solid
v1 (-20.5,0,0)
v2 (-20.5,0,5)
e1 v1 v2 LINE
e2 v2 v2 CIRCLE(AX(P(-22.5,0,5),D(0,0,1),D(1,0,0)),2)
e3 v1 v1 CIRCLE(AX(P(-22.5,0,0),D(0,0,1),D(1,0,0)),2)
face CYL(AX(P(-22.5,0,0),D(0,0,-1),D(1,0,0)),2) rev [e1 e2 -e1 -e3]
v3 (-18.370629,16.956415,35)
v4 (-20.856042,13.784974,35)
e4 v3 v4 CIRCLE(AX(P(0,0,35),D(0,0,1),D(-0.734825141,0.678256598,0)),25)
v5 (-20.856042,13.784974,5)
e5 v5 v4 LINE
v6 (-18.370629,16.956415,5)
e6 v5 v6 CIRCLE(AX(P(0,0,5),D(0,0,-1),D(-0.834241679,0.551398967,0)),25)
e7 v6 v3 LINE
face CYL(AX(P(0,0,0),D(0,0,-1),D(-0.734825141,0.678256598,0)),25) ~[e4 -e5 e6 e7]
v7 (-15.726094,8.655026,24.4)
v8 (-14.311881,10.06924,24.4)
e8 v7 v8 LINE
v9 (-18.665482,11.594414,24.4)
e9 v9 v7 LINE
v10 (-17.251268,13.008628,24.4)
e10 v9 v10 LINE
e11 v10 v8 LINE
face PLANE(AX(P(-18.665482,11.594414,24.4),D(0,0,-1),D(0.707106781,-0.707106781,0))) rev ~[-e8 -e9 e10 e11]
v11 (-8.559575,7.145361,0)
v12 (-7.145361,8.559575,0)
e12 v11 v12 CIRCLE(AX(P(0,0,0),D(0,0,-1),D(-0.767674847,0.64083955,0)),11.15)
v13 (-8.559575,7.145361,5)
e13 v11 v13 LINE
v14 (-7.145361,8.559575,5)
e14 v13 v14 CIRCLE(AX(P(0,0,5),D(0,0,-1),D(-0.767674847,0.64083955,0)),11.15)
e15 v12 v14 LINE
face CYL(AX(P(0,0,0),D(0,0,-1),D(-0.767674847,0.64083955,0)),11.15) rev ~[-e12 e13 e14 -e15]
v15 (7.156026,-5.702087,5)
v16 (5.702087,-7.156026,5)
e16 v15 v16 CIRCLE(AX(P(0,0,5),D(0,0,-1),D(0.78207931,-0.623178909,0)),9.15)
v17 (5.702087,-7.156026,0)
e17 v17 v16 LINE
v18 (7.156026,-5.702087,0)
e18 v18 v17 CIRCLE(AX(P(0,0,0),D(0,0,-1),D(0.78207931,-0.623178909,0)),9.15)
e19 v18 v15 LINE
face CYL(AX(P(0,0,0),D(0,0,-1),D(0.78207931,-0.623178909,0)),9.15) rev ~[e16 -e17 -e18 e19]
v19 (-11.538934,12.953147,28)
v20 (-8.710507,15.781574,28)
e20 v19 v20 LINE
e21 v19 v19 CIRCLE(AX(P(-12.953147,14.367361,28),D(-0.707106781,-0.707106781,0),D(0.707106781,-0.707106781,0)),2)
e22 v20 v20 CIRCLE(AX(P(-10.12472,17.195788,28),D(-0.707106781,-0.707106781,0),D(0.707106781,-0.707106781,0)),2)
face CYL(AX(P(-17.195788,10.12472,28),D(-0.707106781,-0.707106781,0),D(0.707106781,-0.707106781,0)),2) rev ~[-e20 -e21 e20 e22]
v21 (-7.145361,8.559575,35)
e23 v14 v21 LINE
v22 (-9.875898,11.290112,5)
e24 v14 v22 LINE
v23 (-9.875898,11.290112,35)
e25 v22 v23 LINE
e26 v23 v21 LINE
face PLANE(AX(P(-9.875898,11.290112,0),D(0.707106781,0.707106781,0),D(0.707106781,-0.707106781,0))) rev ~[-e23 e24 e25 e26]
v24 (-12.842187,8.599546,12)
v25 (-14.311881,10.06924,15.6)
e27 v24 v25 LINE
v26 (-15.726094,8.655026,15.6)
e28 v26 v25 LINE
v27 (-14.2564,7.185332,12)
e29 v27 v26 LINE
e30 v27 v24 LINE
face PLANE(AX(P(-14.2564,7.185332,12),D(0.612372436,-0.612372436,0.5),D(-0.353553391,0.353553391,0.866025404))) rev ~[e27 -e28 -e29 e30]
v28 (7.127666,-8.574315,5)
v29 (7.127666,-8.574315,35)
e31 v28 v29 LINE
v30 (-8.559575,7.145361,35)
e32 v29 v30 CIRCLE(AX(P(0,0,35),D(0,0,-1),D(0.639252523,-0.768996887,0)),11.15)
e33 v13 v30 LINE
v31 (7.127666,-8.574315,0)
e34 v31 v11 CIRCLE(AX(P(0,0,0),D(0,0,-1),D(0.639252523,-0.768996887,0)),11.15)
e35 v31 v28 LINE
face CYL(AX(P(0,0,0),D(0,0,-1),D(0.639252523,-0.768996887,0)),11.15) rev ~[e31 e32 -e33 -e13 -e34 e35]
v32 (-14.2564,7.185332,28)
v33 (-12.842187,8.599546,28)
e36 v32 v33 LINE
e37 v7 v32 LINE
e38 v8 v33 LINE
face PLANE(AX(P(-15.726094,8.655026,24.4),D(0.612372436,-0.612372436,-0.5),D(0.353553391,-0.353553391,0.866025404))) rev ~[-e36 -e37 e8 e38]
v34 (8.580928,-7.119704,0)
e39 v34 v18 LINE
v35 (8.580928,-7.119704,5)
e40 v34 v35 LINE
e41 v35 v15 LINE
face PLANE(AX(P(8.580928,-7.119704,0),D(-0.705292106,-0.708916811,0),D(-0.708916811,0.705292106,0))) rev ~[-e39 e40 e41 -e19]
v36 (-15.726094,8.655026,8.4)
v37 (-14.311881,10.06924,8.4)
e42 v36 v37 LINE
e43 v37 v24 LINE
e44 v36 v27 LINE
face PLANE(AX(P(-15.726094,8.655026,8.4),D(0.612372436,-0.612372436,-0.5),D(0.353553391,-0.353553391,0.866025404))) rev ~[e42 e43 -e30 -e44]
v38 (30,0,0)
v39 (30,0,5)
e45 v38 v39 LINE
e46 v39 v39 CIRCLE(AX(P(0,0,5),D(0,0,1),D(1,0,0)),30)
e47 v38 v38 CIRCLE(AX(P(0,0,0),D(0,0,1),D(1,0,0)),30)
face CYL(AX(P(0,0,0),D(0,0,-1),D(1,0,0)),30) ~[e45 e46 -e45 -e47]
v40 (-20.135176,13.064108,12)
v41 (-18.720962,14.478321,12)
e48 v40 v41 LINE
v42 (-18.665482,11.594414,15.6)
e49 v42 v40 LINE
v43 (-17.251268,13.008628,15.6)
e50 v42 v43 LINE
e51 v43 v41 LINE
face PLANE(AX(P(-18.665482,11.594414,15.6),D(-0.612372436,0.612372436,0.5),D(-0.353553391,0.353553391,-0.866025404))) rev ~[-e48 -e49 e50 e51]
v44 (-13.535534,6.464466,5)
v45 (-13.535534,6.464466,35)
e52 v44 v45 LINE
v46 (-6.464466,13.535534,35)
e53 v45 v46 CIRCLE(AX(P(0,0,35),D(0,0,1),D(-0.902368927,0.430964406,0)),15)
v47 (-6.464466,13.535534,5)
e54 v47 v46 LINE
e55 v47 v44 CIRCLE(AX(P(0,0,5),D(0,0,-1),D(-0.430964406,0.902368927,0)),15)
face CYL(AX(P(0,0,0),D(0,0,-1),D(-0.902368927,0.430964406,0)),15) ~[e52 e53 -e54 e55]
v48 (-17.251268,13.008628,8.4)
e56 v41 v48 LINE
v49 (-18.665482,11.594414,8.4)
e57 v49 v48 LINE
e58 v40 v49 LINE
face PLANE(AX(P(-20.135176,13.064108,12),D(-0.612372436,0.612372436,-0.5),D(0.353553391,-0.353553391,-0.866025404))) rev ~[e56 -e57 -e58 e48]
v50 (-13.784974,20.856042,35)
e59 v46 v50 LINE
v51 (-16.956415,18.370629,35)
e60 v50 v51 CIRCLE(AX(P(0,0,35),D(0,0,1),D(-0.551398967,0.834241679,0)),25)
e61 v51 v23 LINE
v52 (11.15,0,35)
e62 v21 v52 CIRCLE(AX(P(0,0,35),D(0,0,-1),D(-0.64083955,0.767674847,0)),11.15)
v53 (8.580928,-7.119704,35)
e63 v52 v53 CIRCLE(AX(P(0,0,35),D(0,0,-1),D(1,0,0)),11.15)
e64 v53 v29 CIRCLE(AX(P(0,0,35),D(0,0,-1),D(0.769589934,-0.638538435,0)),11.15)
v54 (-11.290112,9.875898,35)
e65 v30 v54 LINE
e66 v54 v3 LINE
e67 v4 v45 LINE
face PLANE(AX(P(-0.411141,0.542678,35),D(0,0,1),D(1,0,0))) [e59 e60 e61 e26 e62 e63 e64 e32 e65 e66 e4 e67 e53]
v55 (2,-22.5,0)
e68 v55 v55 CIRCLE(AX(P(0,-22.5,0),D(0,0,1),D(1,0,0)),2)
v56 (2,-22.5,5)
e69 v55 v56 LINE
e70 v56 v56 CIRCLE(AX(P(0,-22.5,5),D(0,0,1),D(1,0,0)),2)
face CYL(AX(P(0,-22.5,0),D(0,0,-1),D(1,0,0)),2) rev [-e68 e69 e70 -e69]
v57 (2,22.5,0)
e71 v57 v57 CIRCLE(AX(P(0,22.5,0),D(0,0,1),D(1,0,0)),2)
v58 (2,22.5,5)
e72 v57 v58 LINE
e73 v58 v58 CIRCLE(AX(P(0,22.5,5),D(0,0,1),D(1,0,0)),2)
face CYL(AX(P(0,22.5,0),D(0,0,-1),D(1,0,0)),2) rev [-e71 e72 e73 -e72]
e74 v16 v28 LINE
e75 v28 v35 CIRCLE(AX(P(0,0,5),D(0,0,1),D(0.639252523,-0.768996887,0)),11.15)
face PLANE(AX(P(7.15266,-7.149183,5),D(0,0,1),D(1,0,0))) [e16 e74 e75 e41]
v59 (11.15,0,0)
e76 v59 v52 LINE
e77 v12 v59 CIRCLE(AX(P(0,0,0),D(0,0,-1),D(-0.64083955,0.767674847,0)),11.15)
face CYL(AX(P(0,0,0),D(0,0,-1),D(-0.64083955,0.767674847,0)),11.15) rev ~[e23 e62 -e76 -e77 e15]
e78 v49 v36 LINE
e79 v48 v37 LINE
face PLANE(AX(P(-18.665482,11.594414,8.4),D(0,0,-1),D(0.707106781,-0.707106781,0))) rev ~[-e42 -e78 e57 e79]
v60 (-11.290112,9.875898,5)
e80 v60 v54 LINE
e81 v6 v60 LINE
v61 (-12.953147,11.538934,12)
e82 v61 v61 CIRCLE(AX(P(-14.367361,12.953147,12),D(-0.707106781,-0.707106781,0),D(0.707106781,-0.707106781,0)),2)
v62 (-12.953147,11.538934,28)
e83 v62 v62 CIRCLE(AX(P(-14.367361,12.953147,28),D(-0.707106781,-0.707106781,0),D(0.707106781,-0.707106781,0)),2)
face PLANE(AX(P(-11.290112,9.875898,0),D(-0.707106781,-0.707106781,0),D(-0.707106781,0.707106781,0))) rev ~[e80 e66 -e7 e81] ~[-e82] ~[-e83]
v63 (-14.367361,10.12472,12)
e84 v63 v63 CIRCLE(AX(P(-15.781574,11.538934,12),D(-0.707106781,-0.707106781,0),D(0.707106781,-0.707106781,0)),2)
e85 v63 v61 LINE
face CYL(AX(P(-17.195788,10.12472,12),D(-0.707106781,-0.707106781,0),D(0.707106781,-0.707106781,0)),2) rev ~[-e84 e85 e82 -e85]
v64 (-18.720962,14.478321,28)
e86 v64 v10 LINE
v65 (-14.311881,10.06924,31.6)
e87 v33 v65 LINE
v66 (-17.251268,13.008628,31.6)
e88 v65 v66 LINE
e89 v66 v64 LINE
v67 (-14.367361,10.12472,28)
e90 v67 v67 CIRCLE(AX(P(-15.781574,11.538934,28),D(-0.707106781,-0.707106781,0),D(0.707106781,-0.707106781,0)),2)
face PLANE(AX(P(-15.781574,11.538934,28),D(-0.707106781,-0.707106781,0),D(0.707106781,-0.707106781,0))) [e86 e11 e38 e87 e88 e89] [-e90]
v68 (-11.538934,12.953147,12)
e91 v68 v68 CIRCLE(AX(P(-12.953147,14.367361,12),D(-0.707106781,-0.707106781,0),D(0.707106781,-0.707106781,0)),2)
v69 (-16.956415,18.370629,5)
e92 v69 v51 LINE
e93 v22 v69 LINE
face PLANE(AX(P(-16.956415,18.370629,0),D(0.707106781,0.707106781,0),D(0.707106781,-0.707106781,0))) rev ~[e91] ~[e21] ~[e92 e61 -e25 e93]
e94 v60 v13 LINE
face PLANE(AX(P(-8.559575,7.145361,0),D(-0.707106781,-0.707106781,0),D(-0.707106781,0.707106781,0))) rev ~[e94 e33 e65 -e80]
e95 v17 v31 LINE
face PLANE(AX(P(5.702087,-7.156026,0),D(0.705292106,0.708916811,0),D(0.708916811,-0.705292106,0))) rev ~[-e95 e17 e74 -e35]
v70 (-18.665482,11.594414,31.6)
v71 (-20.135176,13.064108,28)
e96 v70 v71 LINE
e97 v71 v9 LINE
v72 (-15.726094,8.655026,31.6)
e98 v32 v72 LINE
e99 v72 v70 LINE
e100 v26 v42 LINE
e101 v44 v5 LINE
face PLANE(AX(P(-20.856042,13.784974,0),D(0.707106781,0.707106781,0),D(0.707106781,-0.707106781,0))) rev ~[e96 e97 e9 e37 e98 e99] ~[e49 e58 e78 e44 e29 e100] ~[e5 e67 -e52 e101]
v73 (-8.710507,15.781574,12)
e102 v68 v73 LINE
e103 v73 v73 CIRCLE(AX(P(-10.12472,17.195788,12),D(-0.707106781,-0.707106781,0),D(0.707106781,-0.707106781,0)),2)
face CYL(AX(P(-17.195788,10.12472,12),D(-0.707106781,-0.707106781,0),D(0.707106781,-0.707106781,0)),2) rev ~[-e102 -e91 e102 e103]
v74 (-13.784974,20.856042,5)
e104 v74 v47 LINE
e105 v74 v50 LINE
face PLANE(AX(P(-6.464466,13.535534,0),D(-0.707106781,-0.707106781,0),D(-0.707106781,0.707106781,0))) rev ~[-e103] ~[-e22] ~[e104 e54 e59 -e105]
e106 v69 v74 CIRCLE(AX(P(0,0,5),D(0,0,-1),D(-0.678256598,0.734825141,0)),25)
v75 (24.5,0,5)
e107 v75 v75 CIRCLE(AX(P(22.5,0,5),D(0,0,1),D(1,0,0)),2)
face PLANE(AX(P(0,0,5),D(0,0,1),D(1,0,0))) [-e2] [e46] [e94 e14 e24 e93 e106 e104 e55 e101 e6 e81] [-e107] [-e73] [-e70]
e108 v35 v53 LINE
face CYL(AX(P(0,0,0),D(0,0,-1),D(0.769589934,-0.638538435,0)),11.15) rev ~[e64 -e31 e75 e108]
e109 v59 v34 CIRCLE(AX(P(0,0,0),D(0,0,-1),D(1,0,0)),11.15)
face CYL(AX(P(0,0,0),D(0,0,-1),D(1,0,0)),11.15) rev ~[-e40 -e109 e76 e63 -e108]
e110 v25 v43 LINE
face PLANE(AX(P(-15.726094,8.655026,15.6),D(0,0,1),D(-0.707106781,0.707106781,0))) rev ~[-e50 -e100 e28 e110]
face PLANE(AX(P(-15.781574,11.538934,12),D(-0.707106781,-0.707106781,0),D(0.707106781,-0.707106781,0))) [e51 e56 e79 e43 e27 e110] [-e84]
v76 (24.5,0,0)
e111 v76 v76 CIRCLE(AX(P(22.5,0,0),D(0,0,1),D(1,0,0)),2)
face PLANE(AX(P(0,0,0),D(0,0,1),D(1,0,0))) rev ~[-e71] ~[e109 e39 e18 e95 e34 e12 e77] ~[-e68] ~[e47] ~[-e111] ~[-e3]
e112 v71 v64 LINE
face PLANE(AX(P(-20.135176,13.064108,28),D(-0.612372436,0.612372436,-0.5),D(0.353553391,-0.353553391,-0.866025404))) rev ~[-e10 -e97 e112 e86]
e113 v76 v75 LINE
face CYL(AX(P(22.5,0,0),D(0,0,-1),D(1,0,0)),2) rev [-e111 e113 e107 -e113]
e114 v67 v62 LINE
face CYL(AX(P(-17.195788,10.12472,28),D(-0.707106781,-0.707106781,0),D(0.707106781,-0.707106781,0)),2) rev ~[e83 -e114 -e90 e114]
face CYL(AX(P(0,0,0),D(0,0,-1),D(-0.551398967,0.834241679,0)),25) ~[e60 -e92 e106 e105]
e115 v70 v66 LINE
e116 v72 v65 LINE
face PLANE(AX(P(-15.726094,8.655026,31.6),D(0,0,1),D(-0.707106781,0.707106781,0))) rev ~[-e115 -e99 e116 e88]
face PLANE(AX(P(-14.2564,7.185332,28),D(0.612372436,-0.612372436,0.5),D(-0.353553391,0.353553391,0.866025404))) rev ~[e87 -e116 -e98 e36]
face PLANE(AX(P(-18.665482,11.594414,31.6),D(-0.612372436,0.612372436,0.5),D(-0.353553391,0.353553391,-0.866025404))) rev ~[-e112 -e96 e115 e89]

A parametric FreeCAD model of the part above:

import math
import FreeCAD as App
import Part
import Sketcher
Q = App.Units.Quantity


def add_polygon(sketch, points):
    """Adds a closed chain of lines whose ends are joined by coincident constraints."""
    first, n = sketch.GeometryCount, len(points)
    for a, b in zip(points, points[1:] + points[:1]):
        sketch.addGeometry(Part.LineSegment(App.Vector(*a, 0), App.Vector(*b, 0)), False)
    for i in range(n):
        sketch.addConstraint(Sketcher.Constraint("Coincident", first + i, 2, first + (i + 1) % n, 1))

doc = App.newDocument("Part")
body = doc.addObject("PartDesign::Body", "Body")

# Sketch on XY plane
sketch1 = body.newObject("Sketcher::SketchObject", "Sketch")
sketch1.AttachmentSupport = (doc.getObject("XY_Plane"), [""])
sketch1.MapMode = "FlatFace"
sketch1.addGeometry([
    Part.ArcOfCircle(Part.Circle(App.Vector(0, 0, 0), App.Vector(0, 0, 1), 11.2), math.radians(0), math.radians(130)),  # 0
    Part.ArcOfCircle(Part.Circle(App.Vector(0, 0, 0), App.Vector(0, 0, 1), 11.1), math.radians(-40), math.radians(0)),  # 1
    Part.ArcOfCircle(Part.Circle(App.Vector(0, 0, 0), App.Vector(0, 0, 1), 11.2), math.radians(-50.26), math.radians(-39.68)),  # 2
    Part.ArcOfCircle(Part.Circle(App.Vector(0, 0, 0), App.Vector(0, 0, 1), 11.2), math.radians(140), math.radians(310)),  # 3
    Part.LineSegment(App.Vector(-8.6, 7.1, 0), App.Vector(-11.3, 9.9, 0)),  # 4
    Part.LineSegment(App.Vector(-11.3, 9.9, 0), App.Vector(-18.4, 17, 0)),  # 5
    Part.ArcOfCircle(Part.Circle(App.Vector(0, 0, 0), App.Vector(0, 0, 1), 25), math.radians(137.29), math.radians(146.54)),  # 6
    Part.LineSegment(App.Vector(-20.9, 13.8, 0), App.Vector(-13.5, 6.5, 0)),  # 7
    Part.ArcOfCircle(Part.Circle(App.Vector(0, 0, 0), App.Vector(0, 0, 1), 15), math.radians(154), math.radians(476)),  # 8
    Part.LineSegment(App.Vector(-6.5, 13.5, 0), App.Vector(-13.8, 20.9, 0)),  # 9
    Part.ArcOfCircle(Part.Circle(App.Vector(0, 0, 0), App.Vector(0, 0, 1), 25), math.radians(123.46), math.radians(132.71)),  # 10
    Part.LineSegment(App.Vector(-17, 18.4, 0), App.Vector(-9.9, 11.3, 0)),  # 11
    Part.LineSegment(App.Vector(-9.9, 11.3, 0), App.Vector(-7.1, 8.6, 0)),  # 12
], False)
sketch1.addConstraint([
    Sketcher.Constraint("Tangent", 0, 1, 1, 2),
    Sketcher.Constraint("Tangent", 1, 1, 2, 2),
    Sketcher.Constraint("Tangent", 2, 1, 3, 2),
    Sketcher.Constraint("Coincident", 3, 1, 4, 1),
    Sketcher.Constraint("Coincident", 4, 2, 5, 1),
    Sketcher.Constraint("Coincident", 5, 2, 6, 1),
    Sketcher.Constraint("Coincident", 6, 2, 7, 1),
    Sketcher.Constraint("Coincident", 7, 2, 8, 1),
    Sketcher.Constraint("Coincident", 8, 2, 9, 1),
    Sketcher.Constraint("Coincident", 9, 2, 10, 1),
    Sketcher.Constraint("Coincident", 10, 2, 11, 1),
    Sketcher.Constraint("Coincident", 11, 2, 12, 1),
    Sketcher.Constraint("Coincident", 12, 2, 0, 2),
    Sketcher.Constraint("Coincident", 0, 3, -1, 1),
    Sketcher.Constraint("Coincident", 2, 3, -1, 1),
    Sketcher.Constraint("Coincident", 6, 3, -1, 1),
    Sketcher.Constraint("Coincident", 8, 3, -1, 1),
    Sketcher.Constraint("Coincident", 10, 3, -1, 1),
    Sketcher.Constraint("Equal", 2, 3),
    Sketcher.Constraint("Equal", 6, 10),
    Sketcher.Constraint("PointOnObject", 0, 1, -1),
    Sketcher.Constraint("Parallel", 4, 5),
    Sketcher.Constraint("Parallel", 5, 7),
    Sketcher.Constraint("Parallel", 7, 9),
    Sketcher.Constraint("Parallel", 9, 11),
    Sketcher.Constraint("Parallel", 11, 12),
    Sketcher.Constraint("Equal", 7, 9),
    Sketcher.Constraint("Equal", 5, 11),
    Sketcher.Constraint("Equal", 4, 12),
    Sketcher.Constraint("Radius", 6, Q("25 mm")),
    Sketcher.Constraint("Radius", 8, Q("15 mm")),
    Sketcher.Constraint("Angle", 4, Q("135 deg")),
    Sketcher.Constraint("Radius", 0, Q("11.15 mm")),
    Sketcher.Constraint("DistanceY", -1, 1, 4, 2, Q("9.875898 mm")),
    Sketcher.Constraint("Distance", 7, Q("10.352762 mm")),
    Sketcher.Constraint("DistanceY", -1, 1, 3, 1, Q("7.145361 mm")),
    Sketcher.Constraint("DistanceY", 2, 1, 1, 1, Q("1.454612 mm")),
    Sketcher.Constraint("DistanceX", -1, 1, 1, 1, Q("8.580928 mm")),
])
pad1 = body.newObject("PartDesign::Pad", "Pad")
pad1.Profile = sketch1
pad1.Length = 35

# Sketch on XY plane
sketch2 = body.newObject("Sketcher::SketchObject", "Sketch001")
sketch2.AttachmentSupport = (doc.getObject("XY_Plane"), [""])
sketch2.MapMode = "FlatFace"
sketch2.addGeometry([
    Part.Circle(App.Vector(0, 0, 0), App.Vector(0, 0, 1), 30),  # 0
    Part.Circle(App.Vector(0, -22.5, 0), App.Vector(0, 0, 1), 2),  # 1
    Part.Circle(App.Vector(-22.5, 0, 0), App.Vector(0, 0, 1), 2),  # 2
    Part.Circle(App.Vector(22.5, 0, 0), App.Vector(0, 0, 1), 2),  # 3
    Part.ArcOfCircle(Part.Circle(App.Vector(0, 0, 0), App.Vector(0, 0, 1), 25), math.radians(123.46), math.radians(132.71)),  # 4
    Part.LineSegment(App.Vector(-13.8, 20.9, 0), App.Vector(-6.5, 13.5, 0)),  # 5
    Part.ArcOfCircle(Part.Circle(App.Vector(0, 0, 0), App.Vector(0, 0, 1), 15), math.radians(154), math.radians(476)),  # 6
    Part.LineSegment(App.Vector(-13.5, 6.5, 0), App.Vector(-20.9, 13.8, 0)),  # 7
    Part.ArcOfCircle(Part.Circle(App.Vector(0, 0, 0), App.Vector(0, 0, 1), 25), math.radians(137.29), math.radians(146.54)),  # 8
    Part.LineSegment(App.Vector(-18.4, 17, 0), App.Vector(-11.3, 9.9, 0)),  # 9
    Part.LineSegment(App.Vector(-11.3, 9.9, 0), App.Vector(-8.6, 7.1, 0)),  # 10
    Part.ArcOfCircle(Part.Circle(App.Vector(0, 0, 0), App.Vector(0, 0, 1), 11.2), math.radians(129.85), math.radians(140.15)),  # 11
    Part.LineSegment(App.Vector(-7.1, 8.6, 0), App.Vector(-9.9, 11.3, 0)),  # 12
    Part.LineSegment(App.Vector(-9.9, 11.3, 0), App.Vector(-17, 18.4, 0)),  # 13
    Part.Circle(App.Vector(0, 22.5, 0), App.Vector(0, 0, 1), 2),  # 14
    Part.ArcOfCircle(Part.Circle(App.Vector(0, 0, 0), App.Vector(0, 0, 1), 11.2), math.radians(-50.26), math.radians(-39.68)),  # 15
    Part.LineSegment(App.Vector(8.6, -7.1, 0), App.Vector(7.2, -5.7, 0)),  # 16
    Part.ArcOfCircle(Part.Circle(App.Vector(0, 0, 0), App.Vector(0, 0, 1), 9.1), math.radians(-51.45), math.radians(-38.55)),  # 17
    Part.LineSegment(App.Vector(5.7, -7.2, 0), App.Vector(7.1, -8.6, 0)),  # 18
], False)
sketch2.addConstraint([
    Sketcher.Constraint("Coincident", 4, 1, 5, 1),
    Sketcher.Constraint("Coincident", 5, 2, 6, 2),
    Sketcher.Constraint("Coincident", 6, 1, 7, 1),
    Sketcher.Constraint("Coincident", 7, 2, 8, 2),
    Sketcher.Constraint("Coincident", 8, 1, 9, 1),
    Sketcher.Constraint("Coincident", 9, 2, 10, 1),
    Sketcher.Constraint("Coincident", 10, 2, 11, 2),
    Sketcher.Constraint("Coincident", 11, 1, 12, 1),
    Sketcher.Constraint("Coincident", 12, 2, 13, 1),
    Sketcher.Constraint("Coincident", 13, 2, 4, 2),
    Sketcher.Constraint("Coincident", 15, 2, 16, 1),
    Sketcher.Constraint("Coincident", 16, 2, 17, 2),
    Sketcher.Constraint("Coincident", 17, 1, 18, 1),
    Sketcher.Constraint("Coincident", 18, 2, 15, 1),
    Sketcher.Constraint("Coincident", 0, 3, -1, 1),
    Sketcher.Constraint("Coincident", 4, 3, -1, 1),
    Sketcher.Constraint("Coincident", 6, 3, -1, 1),
    Sketcher.Constraint("Coincident", 8, 3, -1, 1),
    Sketcher.Constraint("Coincident", 11, 3, -1, 1),
    Sketcher.Constraint("Coincident", 15, 3, -1, 1),
    Sketcher.Constraint("Coincident", 17, 3, -1, 1),
    Sketcher.Constraint("Equal", 1, 2),
    Sketcher.Constraint("Equal", 2, 3),
    Sketcher.Constraint("Equal", 4, 8),
    Sketcher.Constraint("Equal", 3, 14),
    Sketcher.Constraint("Equal", 11, 15),
    Sketcher.Constraint("Symmetric", 2, 3, 3, 3, -1, 1),
    Sketcher.Constraint("Symmetric", 1, 3, 14, 3, -1, 1),
    Sketcher.Constraint("PointOnObject", 1, 3, -2),
    Sketcher.Constraint("PointOnObject", 2, 3, -1),
    Sketcher.Constraint("Parallel", 5, 7),
    Sketcher.Constraint("Parallel", 7, 9),
    Sketcher.Constraint("Parallel", 9, 10),
    Sketcher.Constraint("Parallel", 10, 12),
    Sketcher.Constraint("Parallel", 12, 13),
    Sketcher.Constraint("Parallel", 16, 18),
    Sketcher.Constraint("Equal", 5, 7),
    Sketcher.Constraint("Equal", 10, 12),
    Sketcher.Constraint("Equal", 9, 13),
    Sketcher.Constraint("Diameter", 0, Q("60 mm")),
    Sketcher.Constraint("Diameter", 1, Q("4 mm")),
    Sketcher.Constraint("Radius", 4, Q("25 mm")),
    Sketcher.Constraint("Radius", 6, Q("15 mm")),
    Sketcher.Constraint("Angle", 5, Q("-45 deg")),
    Sketcher.Constraint("Radius", 11, Q("11.15 mm")),
    Sketcher.Constraint("Radius", 17, Q("9.15 mm")),
    Sketcher.Constraint("DistanceX", 2, 3, 3, 3, Q("45 mm")),
    Sketcher.Constraint("DistanceY", 1, 3, -1, 1, Q("22.5 mm")),
    Sketcher.Constraint("DistanceY", -1, 1, 9, 2, Q("9.875898 mm")),
    Sketcher.Constraint("Distance", 5, Q("10.352762 mm")),
    Sketcher.Constraint("Distance", 16, Q("2.009971 mm")),
    Sketcher.Constraint("DistanceX", 8, 1, -1, 1, Q("18.370629 mm")),
    Sketcher.Constraint("DistanceX", 17, 1, 16, 2, Q("1.453939 mm")),
    Sketcher.Constraint("DistanceY", 17, 1, 16, 2, Q("1.453939 mm")),
])
pad2 = body.newObject("PartDesign::Pad", "Pad001")
pad2.Profile = sketch2
pad2.Length = 5

# Sketch on an angled plane
sketch3 = body.newObject("Sketcher::SketchObject", "Sketch002")
sketch3.Placement = App.Placement(App.Vector(-3.535534, -3.535534, 0), App.Rotation(App.Vector(0.707106781, -0.707106781, 0), App.Vector(0, 0, 0.999999999), App.Vector(-0.707106781, -0.707106781, 0), "ZXY"))
sketch3.addGeometry([
    Part.Circle(App.Vector(-19.3, 28, 0), App.Vector(0, 0, 1), 2),
    Part.Circle(App.Vector(-19.3, 12, 0), App.Vector(0, 0, 1), 2),
], False)
sketch3.addConstraint([
    Sketcher.Constraint("Equal", 0, 1),
    Sketcher.Constraint("Vertical", 0, 3, 1, 3),
    Sketcher.Constraint("Diameter", 0, Q("4 mm")),
    Sketcher.Constraint("DistanceY", -1, 1, 0, 3, Q("28 mm")),
    Sketcher.Constraint("DistanceY", -1, 1, 1, 3, Q("12 mm")),
    Sketcher.Constraint("DistanceX", 0, 3, -1, 1, Q("19.318517 mm")),
])
pocket1 = body.newObject("PartDesign::Pocket", "Pocket")
pocket1.Profile = sketch3
pocket1.Length = 11

# Sketch on an angled plane
sketch4 = body.newObject("Sketcher::SketchObject", "Sketch003")
sketch4.Placement = App.Placement(App.Vector(-3.535534, -3.535534, 0), App.Rotation(App.Vector(0.707106781, -0.707106781, 0), App.Vector(0, 0, 0.999999999), App.Vector(-0.707106781, -0.707106781, 0), "ZXY"))
add_polygon(sketch4, [(-17.2, 31.6), (-21.4, 31.6), (-23.5, 28), (-21.4, 24.4), (-17.2, 24.4), (-15.2, 28)])  # lines 0-5
sketch4.addGeometry(Part.Circle(App.Vector(-19.3, 28, 0), App.Vector(0, 0, 1), 2), False)  # 6
add_polygon(sketch4, [(-17.2, 15.6), (-21.4, 15.6), (-23.5, 12), (-21.4, 8.4), (-17.2, 8.4), (-15.2, 12)])  # lines 7-12
sketch4.addGeometry(Part.Circle(App.Vector(-19.3, 12, 0), App.Vector(0, 0, 1), 2), False)  # 13
sketch4.addConstraint([
    Sketcher.Constraint("Horizontal", 0),
    Sketcher.Constraint("Horizontal", 3),
    Sketcher.Constraint("Horizontal", 7),
    Sketcher.Constraint("Horizontal", 10),
    Sketcher.Constraint("Equal", 6, 13),
    Sketcher.Constraint("Parallel", 1, 4),
    Sketcher.Constraint("Parallel", 2, 5),
    Sketcher.Constraint("Parallel", 4, 8),
    Sketcher.Constraint("Parallel", 5, 9),
    Sketcher.Constraint("Parallel", 8, 11),
    Sketcher.Constraint("Parallel", 9, 12),
    Sketcher.Constraint("Horizontal", 6, 3, 1, 2),
    Sketcher.Constraint("Horizontal", 1, 2, 4, 2),
    Sketcher.Constraint("Horizontal", 13, 3, 8, 2),
    Sketcher.Constraint("Horizontal", 8, 2, 11, 2),
    Sketcher.Constraint("Vertical", 6, 3, 13, 3),
    Sketcher.Constraint("Vertical", 0, 2, 2, 2),
    Sketcher.Constraint("Vertical", 3, 2, 5, 2),
    Sketcher.Constraint("Vertical", 2, 2, 7, 2),
    Sketcher.Constraint("Vertical", 1, 2, 8, 2),
    Sketcher.Constraint("Vertical", 7, 2, 9, 2),
    Sketcher.Constraint("Vertical", 5, 2, 10, 2),
    Sketcher.Constraint("Diameter", 6, Q("4 mm")),
    Sketcher.Constraint("Angle", 1, Q("-120 deg")),
    Sketcher.Constraint("DistanceY", -1, 1, 6, 3, Q("28 mm")),
    Sketcher.Constraint("DistanceY", -1, 1, 13, 3, Q("12 mm")),
    Sketcher.Constraint("DistanceY", -1, 1, 0, 2, Q("31.6 mm")),
    Sketcher.Constraint("DistanceX", 0, 2, 0, 1, Q("4.156922 mm")),
    Sketcher.Constraint("DistanceX", 1, 2, -1, 1, Q("23.475438 mm")),
    Sketcher.Constraint("DistanceX", 0, 2, 6, 3, Q("2.078461 mm")),
])
pocket2 = body.newObject("PartDesign::Pocket", "Pocket001")
pocket2.Profile = sketch4
pocket2.Length = 2

doc.recompute()
